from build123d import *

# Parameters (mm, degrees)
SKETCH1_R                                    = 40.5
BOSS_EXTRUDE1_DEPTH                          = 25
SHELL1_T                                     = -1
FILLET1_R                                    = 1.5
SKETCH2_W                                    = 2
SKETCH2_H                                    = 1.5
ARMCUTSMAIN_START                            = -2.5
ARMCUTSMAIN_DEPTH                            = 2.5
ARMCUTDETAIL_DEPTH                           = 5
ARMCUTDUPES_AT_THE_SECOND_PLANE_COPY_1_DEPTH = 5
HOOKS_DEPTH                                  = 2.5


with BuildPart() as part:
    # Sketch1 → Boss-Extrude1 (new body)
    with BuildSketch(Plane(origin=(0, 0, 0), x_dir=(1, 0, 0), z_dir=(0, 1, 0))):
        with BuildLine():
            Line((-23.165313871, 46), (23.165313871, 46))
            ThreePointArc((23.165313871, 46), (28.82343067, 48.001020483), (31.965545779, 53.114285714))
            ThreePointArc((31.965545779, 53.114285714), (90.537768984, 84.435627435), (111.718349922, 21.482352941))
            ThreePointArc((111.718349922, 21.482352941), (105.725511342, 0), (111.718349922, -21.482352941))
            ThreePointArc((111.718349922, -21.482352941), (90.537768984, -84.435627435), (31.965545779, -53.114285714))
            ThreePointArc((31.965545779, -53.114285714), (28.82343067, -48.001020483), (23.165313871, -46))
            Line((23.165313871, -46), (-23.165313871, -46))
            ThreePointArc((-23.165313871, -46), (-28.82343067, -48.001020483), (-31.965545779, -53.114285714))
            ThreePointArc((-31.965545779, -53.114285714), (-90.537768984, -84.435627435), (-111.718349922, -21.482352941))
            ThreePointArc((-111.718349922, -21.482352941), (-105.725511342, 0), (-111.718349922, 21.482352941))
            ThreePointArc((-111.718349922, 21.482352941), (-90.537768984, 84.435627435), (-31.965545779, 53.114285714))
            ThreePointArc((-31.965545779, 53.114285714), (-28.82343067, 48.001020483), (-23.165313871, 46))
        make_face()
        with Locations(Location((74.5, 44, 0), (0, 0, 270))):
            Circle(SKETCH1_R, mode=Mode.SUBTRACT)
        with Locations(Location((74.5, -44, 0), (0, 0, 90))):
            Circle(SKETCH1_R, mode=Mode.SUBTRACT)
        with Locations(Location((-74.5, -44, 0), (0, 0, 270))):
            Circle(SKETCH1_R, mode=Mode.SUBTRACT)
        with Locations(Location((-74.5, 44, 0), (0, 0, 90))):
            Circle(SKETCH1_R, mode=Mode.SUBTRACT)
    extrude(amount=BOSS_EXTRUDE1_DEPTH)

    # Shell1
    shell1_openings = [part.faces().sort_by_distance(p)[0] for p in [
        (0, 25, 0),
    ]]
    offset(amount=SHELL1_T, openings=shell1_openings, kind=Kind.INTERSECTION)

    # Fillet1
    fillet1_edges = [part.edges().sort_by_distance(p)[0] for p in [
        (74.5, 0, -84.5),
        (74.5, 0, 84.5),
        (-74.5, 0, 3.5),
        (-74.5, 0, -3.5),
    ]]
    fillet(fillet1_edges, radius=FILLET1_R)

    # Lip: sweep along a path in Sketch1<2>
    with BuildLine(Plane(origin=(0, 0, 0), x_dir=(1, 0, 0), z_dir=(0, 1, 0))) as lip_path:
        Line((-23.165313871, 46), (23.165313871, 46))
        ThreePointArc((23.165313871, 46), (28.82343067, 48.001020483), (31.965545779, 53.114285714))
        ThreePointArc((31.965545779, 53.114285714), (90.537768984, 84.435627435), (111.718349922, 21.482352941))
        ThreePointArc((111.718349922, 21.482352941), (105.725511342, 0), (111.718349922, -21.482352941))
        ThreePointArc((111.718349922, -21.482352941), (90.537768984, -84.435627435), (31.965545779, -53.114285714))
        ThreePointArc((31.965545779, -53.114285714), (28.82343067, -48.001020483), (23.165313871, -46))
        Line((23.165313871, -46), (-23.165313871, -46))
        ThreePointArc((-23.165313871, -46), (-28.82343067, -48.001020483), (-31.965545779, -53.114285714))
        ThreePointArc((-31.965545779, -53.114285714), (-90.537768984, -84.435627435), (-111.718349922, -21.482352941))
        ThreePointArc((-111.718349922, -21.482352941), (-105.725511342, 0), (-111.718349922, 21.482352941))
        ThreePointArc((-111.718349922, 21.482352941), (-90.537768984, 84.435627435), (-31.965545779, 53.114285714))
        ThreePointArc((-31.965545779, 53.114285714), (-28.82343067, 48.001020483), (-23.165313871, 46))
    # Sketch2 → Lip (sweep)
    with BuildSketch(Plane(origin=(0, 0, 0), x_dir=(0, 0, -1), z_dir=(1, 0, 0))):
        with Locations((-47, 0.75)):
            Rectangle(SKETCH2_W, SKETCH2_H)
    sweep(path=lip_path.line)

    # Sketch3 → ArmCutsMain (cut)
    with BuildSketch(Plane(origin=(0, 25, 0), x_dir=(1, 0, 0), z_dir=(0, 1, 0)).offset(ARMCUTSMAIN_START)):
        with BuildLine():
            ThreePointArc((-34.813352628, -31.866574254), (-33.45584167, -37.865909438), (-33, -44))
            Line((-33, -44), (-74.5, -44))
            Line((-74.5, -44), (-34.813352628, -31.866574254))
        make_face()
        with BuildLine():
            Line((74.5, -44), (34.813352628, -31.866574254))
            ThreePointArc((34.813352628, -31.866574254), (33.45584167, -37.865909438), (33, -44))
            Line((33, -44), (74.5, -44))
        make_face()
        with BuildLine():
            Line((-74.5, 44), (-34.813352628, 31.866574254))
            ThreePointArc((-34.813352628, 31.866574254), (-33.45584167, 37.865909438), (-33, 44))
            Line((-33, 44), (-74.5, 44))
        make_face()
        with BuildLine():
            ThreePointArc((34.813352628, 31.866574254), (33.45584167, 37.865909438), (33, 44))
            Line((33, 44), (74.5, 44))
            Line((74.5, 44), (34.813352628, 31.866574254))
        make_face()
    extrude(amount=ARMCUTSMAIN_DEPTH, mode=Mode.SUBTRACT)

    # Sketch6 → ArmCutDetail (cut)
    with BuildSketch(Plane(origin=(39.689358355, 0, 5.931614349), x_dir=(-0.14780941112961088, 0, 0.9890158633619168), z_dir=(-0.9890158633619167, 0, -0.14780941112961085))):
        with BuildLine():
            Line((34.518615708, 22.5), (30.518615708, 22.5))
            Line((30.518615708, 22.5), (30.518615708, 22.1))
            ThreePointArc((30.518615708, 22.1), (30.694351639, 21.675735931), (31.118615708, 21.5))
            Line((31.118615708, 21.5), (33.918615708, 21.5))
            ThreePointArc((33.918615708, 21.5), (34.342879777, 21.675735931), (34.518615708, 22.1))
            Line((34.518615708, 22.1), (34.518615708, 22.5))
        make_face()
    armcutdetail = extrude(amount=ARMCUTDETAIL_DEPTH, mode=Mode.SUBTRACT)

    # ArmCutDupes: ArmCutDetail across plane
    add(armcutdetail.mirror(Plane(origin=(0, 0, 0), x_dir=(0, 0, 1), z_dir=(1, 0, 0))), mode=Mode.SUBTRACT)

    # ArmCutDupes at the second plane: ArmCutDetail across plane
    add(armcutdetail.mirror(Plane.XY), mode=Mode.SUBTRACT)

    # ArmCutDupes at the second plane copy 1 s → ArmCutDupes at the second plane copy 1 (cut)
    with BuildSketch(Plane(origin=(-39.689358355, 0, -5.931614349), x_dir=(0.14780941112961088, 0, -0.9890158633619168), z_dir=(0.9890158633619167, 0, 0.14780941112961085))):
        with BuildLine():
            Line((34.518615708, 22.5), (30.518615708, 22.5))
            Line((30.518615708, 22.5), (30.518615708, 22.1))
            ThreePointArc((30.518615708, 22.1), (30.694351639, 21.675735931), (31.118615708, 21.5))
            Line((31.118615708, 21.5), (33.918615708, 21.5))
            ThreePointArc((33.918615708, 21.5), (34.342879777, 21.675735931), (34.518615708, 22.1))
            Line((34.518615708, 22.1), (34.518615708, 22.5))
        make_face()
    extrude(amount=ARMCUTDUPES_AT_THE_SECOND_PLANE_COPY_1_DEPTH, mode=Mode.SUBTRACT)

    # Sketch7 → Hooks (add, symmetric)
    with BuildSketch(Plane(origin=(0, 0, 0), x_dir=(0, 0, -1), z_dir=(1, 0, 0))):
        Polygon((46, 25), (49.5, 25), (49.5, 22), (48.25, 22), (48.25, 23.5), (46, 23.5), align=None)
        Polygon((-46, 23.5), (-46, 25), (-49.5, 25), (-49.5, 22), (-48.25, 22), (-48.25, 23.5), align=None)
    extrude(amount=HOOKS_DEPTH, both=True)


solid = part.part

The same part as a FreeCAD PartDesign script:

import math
import FreeCAD as App
import Part
import Sketcher
Q = App.Units.Quantity


def edges_at(feature, points):
    """Names of the edges that pass closest to the given points."""
    edges = feature.Shape.Edges
    near = lambda p: min(range(len(edges)), key=lambda i: edges[i].distToShape(Part.Vertex(*p))[0])
    return sorted({f"Edge{near(p) + 1}" for p in points})


def faces_at(feature, points):
    """Names of the faces that lie closest to the given points."""
    faces = feature.Shape.Faces
    near = lambda p: min(range(len(faces)), key=lambda i: faces[i].distToShape(Part.Vertex(*p))[0])
    return sorted({f"Face{near(p) + 1}" for p in points})


def add_polygon(sketch, points):
    """Adds a closed chain of lines whose ends are joined by coincident constraints."""
    first, n = sketch.GeometryCount, len(points)
    for a, b in zip(points, points[1:] + points[:1]):
        sketch.addGeometry(Part.LineSegment(App.Vector(*a, 0), App.Vector(*b, 0)), False)
    for i in range(n):
        sketch.addConstraint(Sketcher.Constraint("Coincident", first + i, 2, first + (i + 1) % n, 1))

doc = App.newDocument("Part")
params = doc.addObject("Spreadsheet::Sheet", "Params")
for row, (alias, value) in enumerate([
    ("sketch1_diameter", "81 mm"),
    ("sketch1_radius", "9 mm"),
    ("sketch1_radius2", "43.5 mm"),
    ("sketch1_radius3", "41.5 mm"),
    ("pad1_length", "25 mm"),
    ("thickness_wall", "1 mm"),
    ("fillet_radius", "1.5 mm"),
    ("sketch2_height", "2 mm"),
    ("sketch2_width", "1.5 mm"),
    ("sketch3_radius", "9 mm"),
    ("sketch3_radius2", "43.5 mm"),
    ("sketch3_radius3", "41.5 mm"),
    ("sketch4_radius", "41.5 mm"),
    ("pocket1_length", "2.5 mm"),
    ("sketch5_radius", "0.6 mm"),
    ("sketch5_width", "4 mm"),
    ("sketch5_height", "0.4 mm"),
    ("pocket2_length", "5 mm"),
    ("sketch6_radius", "0.6 mm"),
    ("sketch6_width", "4 mm"),
    ("sketch6_height", "0.4 mm"),
    ("pocket3_length", "5 mm"),
    ("sketch7_width", "3 mm"),
    ("sketch7_height", "3.5 mm"),
    ("sketch7_height2", "2.25 mm"),
    ("pad2_length", "5 mm"),
], start=1):
    params.set(f"A{row}", alias)
    params.set(f"B{row}", "=" + value)
    params.setAlias(f"B{row}", alias)

body = doc.addObject("PartDesign::Body", "Body")

sketch1 = body.newObject("Sketcher::SketchObject", "Sketch")
sketch1.AttachmentSupport = (doc.getObject("XZ_Plane"), [""])
sketch1.MapMode = "FlatFace"
sketch1.addGeometry([
    Part.LineSegment(App.Vector(23, -46, 0), App.Vector(-23, -46, 0)),
    Part.ArcOfCircle(Part.Circle(App.Vector(-23, -55, 0), App.Vector(0, 0, 1), 9), math.radians(90), math.radians(168)),
    Part.ArcOfCircle(Part.Circle(App.Vector(-74, -44, 0), App.Vector(0, 0, 1), 44), math.radians(149), math.radians(348)),
    Part.ArcOfCircle(Part.Circle(App.Vector(-147, 0, 0), App.Vector(0, 0, 1), 41), math.radians(-31), math.radians(31)),
    Part.ArcOfCircle(Part.Circle(App.Vector(-74, 44, 0), App.Vector(0, 0, 1), 44), math.radians(12), math.radians(211)),
    Part.ArcOfCircle(Part.Circle(App.Vector(-23, 55, 0), App.Vector(0, 0, 1), 9), math.radians(-168), math.radians(-90)),
    Part.LineSegment(App.Vector(-23, 46, 0), App.Vector(23, 46, 0)),
    Part.ArcOfCircle(Part.Circle(App.Vector(23, 55, 0), App.Vector(0, 0, 1), 9), math.radians(-90), math.radians(-12)),
    Part.ArcOfCircle(Part.Circle(App.Vector(74, 44, 0), App.Vector(0, 0, 1), 44), math.radians(-31), math.radians(168)),
    Part.ArcOfCircle(Part.Circle(App.Vector(147, 0, 0), App.Vector(0, 0, 1), 41), math.radians(149), math.radians(211)),
    Part.ArcOfCircle(Part.Circle(App.Vector(74, -44, 0), App.Vector(0, 0, 1), 44), math.radians(-168), math.radians(31)),
    Part.ArcOfCircle(Part.Circle(App.Vector(23, -55, 0), App.Vector(0, 0, 1), 9), math.radians(12), math.radians(90)),
    Part.Circle(App.Vector(74, 44, 0), App.Vector(0, 0, 1), 40),
    Part.Circle(App.Vector(-74, 44, 0), App.Vector(0, 0, 1), 40),
    Part.Circle(App.Vector(74, -44, 0), App.Vector(0, 0, 1), 40),
    Part.Circle(App.Vector(-74, -44, 0), App.Vector(0, 0, 1), 40),
], False)
sketch1.addConstraint([
    Sketcher.Constraint("Tangent", 0, 2, 1, 1),
    Sketcher.Constraint("Tangent", 1, 2, 2, 2),
    Sketcher.Constraint("Tangent", 2, 1, 3, 1),
    Sketcher.Constraint("Tangent", 3, 2, 4, 2),
    Sketcher.Constraint("Tangent", 4, 1, 5, 1),
    Sketcher.Constraint("Tangent", 5, 2, 6, 1),
    Sketcher.Constraint("Tangent", 6, 2, 7, 1),
    Sketcher.Constraint("Tangent", 7, 2, 8, 2),
    Sketcher.Constraint("Tangent", 8, 1, 9, 1),
    Sketcher.Constraint("Tangent", 9, 2, 10, 2),
    Sketcher.Constraint("Tangent", 10, 1, 11, 1),
    Sketcher.Constraint("Tangent", 11, 2, 0, 1),
    Sketcher.Constraint("Horizontal", 0),
    Sketcher.Constraint("Horizontal", 6),
    Sketcher.Constraint("Coincident", 12, 3, 8, 3),
    Sketcher.Constraint("Coincident", 13, 3, 4, 3),
    Sketcher.Constraint("Coincident", 14, 3, 10, 3),
    Sketcher.Constraint("Coincident", 15, 3, 2, 3),
    Sketcher.Constraint("Equal", 2, 4),
    Sketcher.Constraint("Equal", 1, 5),
    Sketcher.Constraint("Equal", 5, 7),
    Sketcher.Constraint("Equal", 4, 8),
    Sketcher.Constraint("Equal", 3, 9),
    Sketcher.Constraint("Equal", 8, 10),
    Sketcher.Constraint("Equal", 7, 11),
    Sketcher.Constraint("Equal", 12, 13),
    Sketcher.Constraint("Equal", 13, 14),
    Sketcher.Constraint("Equal", 14, 15),
    Sketcher.Constraint("Symmetric", 1, 3, 7, 3, -1, 1),
    Sketcher.Constraint("Symmetric", 3, 3, 9, 3, -1, 1),
    Sketcher.Constraint("Symmetric", 4, 3, 8, 3, -2),
    Sketcher.Constraint("Horizontal", 2, 3, 10, 3),
    Sketcher.Constraint("Diameter", 12, Q("81 mm")),
    Sketcher.Constraint("Radius", 1, Q("9 mm")),
    Sketcher.Constraint("Radius", 2, Q("43.5 mm")),
    Sketcher.Constraint("Radius", 3, Q("41.5 mm")),
    Sketcher.Constraint("DistanceY", 1, 3, -1, 1, Q("55 mm")),
    Sketcher.Constraint("DistanceY", 2, 3, -1, 1, Q("44 mm")),
    Sketcher.Constraint("DistanceX", 4, 3, 8, 3, Q("149 mm")),
])
sketch1.setExpression("Constraints[32]", "Params.sketch1_diameter")
sketch1.setExpression("Constraints[33]", "Params.sketch1_radius")
sketch1.setExpression("Constraints[34]", "Params.sketch1_radius2")
sketch1.setExpression("Constraints[35]", "Params.sketch1_radius3")
pad1 = body.newObject("PartDesign::Pad", "Pad")
pad1.Profile = sketch1
pad1.setExpression("Length", "Params.pad1_length")
pad1.Reversed = True
doc.recompute()

thickness = body.newObject("PartDesign::Thickness", "Thickness")
thickness.Base = (pad1, faces_at(pad1, [(0, 25, 0)]))
thickness.setExpression("Value", "Params.thickness_wall")
thickness.Reversed = True
thickness.Join = "Intersection"
doc.recompute()

fillet = body.newObject("PartDesign::Fillet", "Fillet")
fillet.Base = (thickness, edges_at(thickness, [
    (74.5, 0, -84.5),
    (74.5, 0, 84.5),
    (-74.5, 0, 3.5),
    (-74.5, 0, -3.5),
]))
fillet.setExpression("Radius", "Params.fillet_radius")

sketch2 = body.newObject("Sketcher::SketchObject", "Sketch001")
sketch2.AttachmentSupport = (doc.getObject("YZ_Plane"), [""])
sketch2.MapMode = "FlatFace"
add_polygon(sketch2, [(1.5, 48), (0, 48), (0, 46), (1.5, 46)])
sketch2.addConstraint([
    Sketcher.Constraint("Horizontal", 0),
    Sketcher.Constraint("Vertical", 1),
    Sketcher.Constraint("Horizontal", 2),
    Sketcher.Constraint("Vertical", 3),
    Sketcher.Constraint("PointOnObject", 0, 2, -2),
    Sketcher.Constraint("DistanceY", 1, 2, 1, 1, Q("2 mm")),
    Sketcher.Constraint("DistanceX", 0, 2, 0, 1, Q("1.5 mm")),
    Sketcher.Constraint("DistanceY", -1, 1, 0, 2, Q("48 mm")),
])
sketch2.setExpression("Constraints[9]", "Params.sketch2_height")
sketch2.setExpression("Constraints[10]", "Params.sketch2_width")

sketch3 = body.newObject("Sketcher::SketchObject", "Sketch002")
sketch3.AttachmentSupport = (doc.getObject("XZ_Plane"), [""])
sketch3.MapMode = "FlatFace"
sketch3.addGeometry([
    Part.LineSegment(App.Vector(-23, -46, 0), App.Vector(23, -46, 0)),
    Part.ArcOfCircle(Part.Circle(App.Vector(23, -55, 0), App.Vector(0, 0, 1), 9), math.radians(12), math.radians(90)),
    Part.ArcOfCircle(Part.Circle(App.Vector(74, -44, 0), App.Vector(0, 0, 1), 44), math.radians(-168), math.radians(31)),
    Part.ArcOfCircle(Part.Circle(App.Vector(147, 0, 0), App.Vector(0, 0, 1), 41), math.radians(149), math.radians(211)),
    Part.ArcOfCircle(Part.Circle(App.Vector(74, 44, 0), App.Vector(0, 0, 1), 44), math.radians(-31), math.radians(168)),
    Part.ArcOfCircle(Part.Circle(App.Vector(23, 55, 0), App.Vector(0, 0, 1), 9), math.radians(-90), math.radians(-12)),
    Part.LineSegment(App.Vector(23, 46, 0), App.Vector(-23, 46, 0)),
    Part.ArcOfCircle(Part.Circle(App.Vector(-23, 55, 0), App.Vector(0, 0, 1), 9), math.radians(-168), math.radians(-90)),
    Part.ArcOfCircle(Part.Circle(App.Vector(-74, 44, 0), App.Vector(0, 0, 1), 44), math.radians(12), math.radians(211)),
    Part.ArcOfCircle(Part.Circle(App.Vector(-147, 0, 0), App.Vector(0, 0, 1), 41), math.radians(-31), math.radians(31)),
    Part.ArcOfCircle(Part.Circle(App.Vector(-74, -44, 0), App.Vector(0, 0, 1), 44), math.radians(149), math.radians(348)),
    Part.ArcOfCircle(Part.Circle(App.Vector(-23, -55, 0), App.Vector(0, 0, 1), 9), math.radians(90), math.radians(168)),
], False)
sketch3.addConstraint([
    Sketcher.Constraint("Tangent", 0, 2, 1, 2),
    Sketcher.Constraint("Tangent", 1, 1, 2, 1),
    Sketcher.Constraint("Tangent", 2, 2, 3, 2),
    Sketcher.Constraint("Tangent", 3, 1, 4, 1),
    Sketcher.Constraint("Tangent", 4, 2, 5, 2),
    Sketcher.Constraint("Tangent", 5, 1, 6, 1),
    Sketcher.Constraint("Tangent", 6, 2, 7, 2),
    Sketcher.Constraint("Tangent", 7, 1, 8, 1),
    Sketcher.Constraint("Tangent", 8, 2, 9, 2),
    Sketcher.Constraint("Tangent", 9, 1, 10, 1),
    Sketcher.Constraint("Tangent", 10, 2, 11, 2),
    Sketcher.Constraint("Tangent", 11, 1, 0, 1),
    Sketcher.Constraint("Horizontal", 0),
    Sketcher.Constraint("Horizontal", 6),
    Sketcher.Constraint("Equal", 2, 4),
    Sketcher.Constraint("Equal", 1, 5),
    Sketcher.Constraint("Equal", 5, 7),
    Sketcher.Constraint("Equal", 4, 8),
    Sketcher.Constraint("Equal", 3, 9),
    Sketcher.Constraint("Equal", 8, 10),
    Sketcher.Constraint("Equal", 7, 11),
    Sketcher.Constraint("Symmetric", 1, 3, 7, 3, -1, 1),
    Sketcher.Constraint("Symmetric", 3, 3, 9, 3, -1, 1),
    Sketcher.Constraint("Symmetric", 4, 3, 8, 3, -2),
    Sketcher.Constraint("Horizontal", 2, 3, 10, 3),
    Sketcher.Constraint("Radius", 1, Q("9 mm")),
    Sketcher.Constraint("Radius", 2, Q("43.5 mm")),
    Sketcher.Constraint("Radius", 3, Q("41.5 mm")),
    Sketcher.Constraint("DistanceY", 1, 3, -1, 1, Q("55 mm")),
    Sketcher.Constraint("DistanceY", 2, 3, -1, 1, Q("44 mm")),
    Sketcher.Constraint("DistanceX", 8, 3, 4, 3, Q("149 mm")),
])
sketch3.setExpression("Constraints[25]", "Params.sketch3_radius")
sketch3.setExpression("Constraints[26]", "Params.sketch3_radius2")
sketch3.setExpression("Constraints[27]", "Params.sketch3_radius3")
doc.recompute()

additivepipe = body.newObject("PartDesign::AdditivePipe", "AdditivePipe")
additivepipe.Profile = sketch2
additivepipe.Spine = (sketch3, ["Edge1", "Edge2", "Edge3", "Edge4", "Edge5", "Edge6", "Edge7", "Edge8", "Edge9", "Edge10", "Edge11", "Edge12"])

sketch4 = body.newObject("Sketcher::SketchObject", "Sketch003")
sketch4.AttachmentSupport = (doc.getObject("XZ_Plane"), [""])
sketch4.MapMode = "FlatFace"
sketch4.AttachmentOffset = App.Placement(App.Vector(0, 0, -22.5), App.Rotation())
sketch4.addGeometry([
    Part.ArcOfCircle(Part.Circle(App.Vector(-74, 44, 0), App.Vector(0, 0, 1), 41), math.radians(-17), math.radians(0)),
    Part.LineSegment(App.Vector(-35, 32, 0), App.Vector(-74, 44, 0)),
    Part.LineSegment(App.Vector(-74, 44, 0), App.Vector(-33, 44, 0)),
    Part.LineSegment(App.Vector(74, 44, 0), App.Vector(35, 32, 0)),
    Part.ArcOfCircle(Part.Circle(App.Vector(74, 44, 0), App.Vector(0, 0, 1), 41), math.radians(180), math.radians(197)),
    Part.LineSegment(App.Vector(33, 44, 0), App.Vector(74, 44, 0)),
    Part.LineSegment(App.Vector(-74, -44, 0), App.Vector(-35, -32, 0)),
    Part.ArcOfCircle(Part.Circle(App.Vector(-74, -44, 0), App.Vector(0, 0, 1), 41), math.radians(0), math.radians(17)),
    Part.LineSegment(App.Vector(-33, -44, 0), App.Vector(-74, -44, 0)),
    Part.ArcOfCircle(Part.Circle(App.Vector(74, -44, 0), App.Vector(0, 0, 1), 41), math.radians(163), math.radians(180)),
    Part.LineSegment(App.Vector(35, -32, 0), App.Vector(74, -44, 0)),
    Part.LineSegment(App.Vector(74, -44, 0), App.Vector(33, -44, 0)),
], False)
sketch4.addConstraint([
    Sketcher.Constraint("Coincident", 0, 1, 1, 1),
    Sketcher.Constraint("Coincident", 1, 2, 2, 1),
    Sketcher.Constraint("Coincident", 2, 2, 0, 2),
    Sketcher.Constraint("Coincident", 3, 2, 4, 2),
    Sketcher.Constraint("Coincident", 4, 1, 5, 1),
    Sketcher.Constraint("Coincident", 5, 2, 3, 1),
    Sketcher.Constraint("Coincident", 6, 2, 7, 2),
    Sketcher.Constraint("Coincident", 7, 1, 8, 1),
    Sketcher.Constraint("Coincident", 8, 2, 6, 1),
    Sketcher.Constraint("Coincident", 9, 1, 10, 1),
    Sketcher.Constraint("Coincident", 10, 2, 11, 1),
    Sketcher.Constraint("Coincident", 11, 2, 9, 2),
    Sketcher.Constraint("Horizontal", 2),
    Sketcher.Constraint("Horizontal", 5),
    Sketcher.Constraint("Horizontal", 8),
    Sketcher.Constraint("Horizontal", 11),
    Sketcher.Constraint("Coincident", 1, 2, 0, 3),
    Sketcher.Constraint("Coincident", 5, 2, 4, 3),
    Sketcher.Constraint("Coincident", 8, 2, 7, 3),
    Sketcher.Constraint("Coincident", 10, 2, 9, 3),
    Sketcher.Constraint("Equal", 0, 4),
    Sketcher.Constraint("Equal", 4, 7),
    Sketcher.Constraint("Equal", 7, 9),
    Sketcher.Constraint("Symmetric", 4, 3, 7, 3, -1, 1),
    Sketcher.Constraint("Symmetric", 0, 3, 9, 3, -1, 1),
    Sketcher.Constraint("Symmetric", 0, 3, 4, 3, -2),
    Sketcher.Constraint("Parallel", 3, 6),
    Sketcher.Constraint("Parallel", 1, 10),
    Sketcher.Constraint("Horizontal", 0, 1, 3, 2),
    Sketcher.Constraint("Radius", 0, Q("41.5 mm")),
    Sketcher.Constraint("Angle", 1, Q("163 deg")),
    Sketcher.Constraint("DistanceY", -1, 1, 0, 3, Q("44 mm")),
    Sketcher.Constraint("DistanceX", 2, 2, -1, 1, Q("33 mm")),
])
sketch4.setExpression("Constraints[29]", "Params.sketch4_radius")
pocket1 = body.newObject("PartDesign::Pocket", "Pocket")
pocket1.Profile = sketch4
pocket1.setExpression("Length", "Params.pocket1_length")

sketch5 = body.newObject("Sketcher::SketchObject", "Sketch004")
sketch5.Placement = App.Placement(App.Vector(39.689358, 0, 5.931614), App.Rotation(App.Vector(-0.147809411, 0, 0.989015863), App.Vector(0, 0.999999999, 0), App.Vector(-0.989015863, 0, -0.147809411), "ZXY"))
sketch5.addGeometry([
    Part.LineSegment(App.Vector(34.52, 22.5, 0), App.Vector(30.52, 22.5, 0)),
    Part.LineSegment(App.Vector(30.52, 22.5, 0), App.Vector(30.52, 22.1, 0)),
    Part.ArcOfCircle(Part.Circle(App.Vector(31.12, 22.1, 0), App.Vector(0, 0, 1), 0.6), math.radians(180), math.radians(270)),
    Part.LineSegment(App.Vector(31.12, 21.5, 0), App.Vector(33.92, 21.5, 0)),
    Part.ArcOfCircle(Part.Circle(App.Vector(33.92, 22.1, 0), App.Vector(0, 0, 1), 0.6), math.radians(-90), math.radians(0)),
    Part.LineSegment(App.Vector(34.52, 22.1, 0), App.Vector(34.52, 22.5, 0)),
], False)
sketch5.addConstraint([
    Sketcher.Constraint("Coincident", 0, 2, 1, 1),
    Sketcher.Constraint("Tangent", 1, 2, 2, 1),
    Sketcher.Constraint("Tangent", 2, 2, 3, 1),
    Sketcher.Constraint("Tangent", 3, 2, 4, 1),
    Sketcher.Constraint("Tangent", 4, 2, 5, 1),
    Sketcher.Constraint("Coincident", 5, 2, 0, 1),
    Sketcher.Constraint("Horizontal", 0),
    Sketcher.Constraint("Vertical", 1),
    Sketcher.Constraint("Horizontal", 3),
    Sketcher.Constraint("Vertical", 5),
    Sketcher.Constraint("Equal", 2, 4),
    Sketcher.Constraint("Radius", 2, Q("0.6 mm")),
    Sketcher.Constraint("DistanceX", 0, 2, 0, 1, Q("4 mm")),
    Sketcher.Constraint("DistanceY", 1, 2, 1, 1, Q("0.4 mm")),
    Sketcher.Constraint("DistanceY", -1, 1, 2, 3, Q("22.1 mm")),
    Sketcher.Constraint("DistanceX", -1, 1, 2, 3, Q("31.118616 mm")),
])
sketch5.setExpression("Constraints[11]", "Params.sketch5_radius")
sketch5.setExpression("Constraints[12]", "Params.sketch5_width")
sketch5.setExpression("Constraints[13]", "Params.sketch5_height")
pocket2 = body.newObject("PartDesign::Pocket", "Pocket001")
pocket2.Profile = sketch5
pocket2.setExpression("Length", "Params.pocket2_length")
pocket2.Reversed = True
doc.recompute()

mirrored = body.newObject("PartDesign::Mirrored", "Mirrored")
mirrored.Originals = [pocket2]
mirrored.MirrorPlane = (doc.getObject("YZ_Plane"), [""])
body.Tip = mirrored
doc.recompute()

mirrored2 = body.newObject("PartDesign::Mirrored", "Mirrored001")
mirrored2.Originals = [pocket2]
mirrored2.MirrorPlane = (doc.getObject("XY_Plane"), [""])
body.Tip = mirrored2

sketch6 = body.newObject("Sketcher::SketchObject", "Sketch005")
sketch6.Placement = App.Placement(App.Vector(-39.689358, 0, -5.931614), App.Rotation(App.Vector(0.147809411, 0, -0.989015863), App.Vector(0, 0.999999999, 0), App.Vector(0.989015863, 0, 0.147809411), "ZXY"))
sketch6.addGeometry([
    Part.LineSegment(App.Vector(34.52, 22.5, 0), App.Vector(30.52, 22.5, 0)),
    Part.LineSegment(App.Vector(30.52, 22.5, 0), App.Vector(30.52, 22.1, 0)),
    Part.ArcOfCircle(Part.Circle(App.Vector(31.12, 22.1, 0), App.Vector(0, 0, 1), 0.6), math.radians(180), math.radians(270)),
    Part.LineSegment(App.Vector(31.12, 21.5, 0), App.Vector(33.92, 21.5, 0)),
    Part.ArcOfCircle(Part.Circle(App.Vector(33.92, 22.1, 0), App.Vector(0, 0, 1), 0.6), math.radians(-90), math.radians(0)),
    Part.LineSegment(App.Vector(34.52, 22.1, 0), App.Vector(34.52, 22.5, 0)),
], False)
sketch6.addConstraint([
    Sketcher.Constraint("Coincident", 0, 2, 1, 1),
    Sketcher.Constraint("Tangent", 1, 2, 2, 1),
    Sketcher.Constraint("Tangent", 2, 2, 3, 1),
    Sketcher.Constraint("Tangent", 3, 2, 4, 1),
    Sketcher.Constraint("Tangent", 4, 2, 5, 1),
    Sketcher.Constraint("Coincident", 5, 2, 0, 1),
    Sketcher.Constraint("Horizontal", 0),
    Sketcher.Constraint("Vertical", 1),
    Sketcher.Constraint("Horizontal", 3),
    Sketcher.Constraint("Vertical", 5),
    Sketcher.Constraint("Equal", 2, 4),
    Sketcher.Constraint("Radius", 2, Q("0.6 mm")),
    Sketcher.Constraint("DistanceX", 0, 2, 0, 1, Q("4 mm")),
    Sketcher.Constraint("DistanceY", 1, 2, 1, 1, Q("0.4 mm")),
    Sketcher.Constraint("DistanceY", -1, 1, 2, 3, Q("22.1 mm")),
    Sketcher.Constraint("DistanceX", -1, 1, 2, 3, Q("31.118616 mm")),
])
sketch6.setExpression("Constraints[11]", "Params.sketch6_radius")
sketch6.setExpression("Constraints[12]", "Params.sketch6_width")
sketch6.setExpression("Constraints[13]", "Params.sketch6_height")
pocket3 = body.newObject("PartDesign::Pocket", "Pocket002")
pocket3.Profile = sketch6
pocket3.setExpression("Length", "Params.pocket3_length")
pocket3.Reversed = True

sketch7 = body.newObject("Sketcher::SketchObject", "Sketch006")
sketch7.AttachmentSupport = (doc.getObject("YZ_Plane"), [""])
sketch7.MapMode = "FlatFace"
add_polygon(sketch7, [(25, -49.5), (25, -46), (23.5, -46), (23.5, -48.2), (22, -48.2), (22, -49.5)])
add_polygon(sketch7, [(23.5, 46), (25, 46), (25, 49.5), (22, 49.5), (22, 48.2), (23.5, 48.2)])
sketch7.addConstraint([
    Sketcher.Constraint("Vertical", 0),
    Sketcher.Constraint("Horizontal", 1),
    Sketcher.Constraint("Vertical", 2),
    Sketcher.Constraint("Horizontal", 3),
    Sketcher.Constraint("Vertical", 4),
    Sketcher.Constraint("Horizontal", 5),
    Sketcher.Constraint("Horizontal", 6),
    Sketcher.Constraint("Vertical", 7),
    Sketcher.Constraint("Horizontal", 8),
    Sketcher.Constraint("Vertical", 9),
    Sketcher.Constraint("Horizontal", 10),
    Sketcher.Constraint("Vertical", 11),
    Sketcher.Constraint("Symmetric", 0, 2, 6, 2, -1),
    Sketcher.Constraint("Symmetric", 4, 2, 8, 2, -1),
    Sketcher.Constraint("Symmetric", 2, 2, 10, 2, -1),
    Sketcher.Constraint("Equal", 1, 3),
    Sketcher.Constraint("DistanceX", 5, 1, 5, 2, Q("3 mm")),
    Sketcher.Constraint("DistanceY", 0, 1, 0, 2, Q("3.5 mm")),
    Sketcher.Constraint("DistanceX", -1, 1, 0, 2, Q("25 mm")),
    Sketcher.Constraint("DistanceY", 0, 2, -1, 1, Q("46 mm")),
    Sketcher.Constraint("DistanceY", 2, 2, 2, 1, Q("2.25 mm")),
])
sketch7.setExpression("Constraints[28]", "Params.sketch7_width")
sketch7.setExpression("Constraints[29]", "Params.sketch7_height")
sketch7.setExpression("Constraints[32]", "Params.sketch7_height2")
pad2 = body.newObject("PartDesign::Pad", "Pad001")
pad2.Profile = sketch7
pad2.setExpression("Length", "Params.pad2_length")
pad2.Midplane = True

doc.recompute()
